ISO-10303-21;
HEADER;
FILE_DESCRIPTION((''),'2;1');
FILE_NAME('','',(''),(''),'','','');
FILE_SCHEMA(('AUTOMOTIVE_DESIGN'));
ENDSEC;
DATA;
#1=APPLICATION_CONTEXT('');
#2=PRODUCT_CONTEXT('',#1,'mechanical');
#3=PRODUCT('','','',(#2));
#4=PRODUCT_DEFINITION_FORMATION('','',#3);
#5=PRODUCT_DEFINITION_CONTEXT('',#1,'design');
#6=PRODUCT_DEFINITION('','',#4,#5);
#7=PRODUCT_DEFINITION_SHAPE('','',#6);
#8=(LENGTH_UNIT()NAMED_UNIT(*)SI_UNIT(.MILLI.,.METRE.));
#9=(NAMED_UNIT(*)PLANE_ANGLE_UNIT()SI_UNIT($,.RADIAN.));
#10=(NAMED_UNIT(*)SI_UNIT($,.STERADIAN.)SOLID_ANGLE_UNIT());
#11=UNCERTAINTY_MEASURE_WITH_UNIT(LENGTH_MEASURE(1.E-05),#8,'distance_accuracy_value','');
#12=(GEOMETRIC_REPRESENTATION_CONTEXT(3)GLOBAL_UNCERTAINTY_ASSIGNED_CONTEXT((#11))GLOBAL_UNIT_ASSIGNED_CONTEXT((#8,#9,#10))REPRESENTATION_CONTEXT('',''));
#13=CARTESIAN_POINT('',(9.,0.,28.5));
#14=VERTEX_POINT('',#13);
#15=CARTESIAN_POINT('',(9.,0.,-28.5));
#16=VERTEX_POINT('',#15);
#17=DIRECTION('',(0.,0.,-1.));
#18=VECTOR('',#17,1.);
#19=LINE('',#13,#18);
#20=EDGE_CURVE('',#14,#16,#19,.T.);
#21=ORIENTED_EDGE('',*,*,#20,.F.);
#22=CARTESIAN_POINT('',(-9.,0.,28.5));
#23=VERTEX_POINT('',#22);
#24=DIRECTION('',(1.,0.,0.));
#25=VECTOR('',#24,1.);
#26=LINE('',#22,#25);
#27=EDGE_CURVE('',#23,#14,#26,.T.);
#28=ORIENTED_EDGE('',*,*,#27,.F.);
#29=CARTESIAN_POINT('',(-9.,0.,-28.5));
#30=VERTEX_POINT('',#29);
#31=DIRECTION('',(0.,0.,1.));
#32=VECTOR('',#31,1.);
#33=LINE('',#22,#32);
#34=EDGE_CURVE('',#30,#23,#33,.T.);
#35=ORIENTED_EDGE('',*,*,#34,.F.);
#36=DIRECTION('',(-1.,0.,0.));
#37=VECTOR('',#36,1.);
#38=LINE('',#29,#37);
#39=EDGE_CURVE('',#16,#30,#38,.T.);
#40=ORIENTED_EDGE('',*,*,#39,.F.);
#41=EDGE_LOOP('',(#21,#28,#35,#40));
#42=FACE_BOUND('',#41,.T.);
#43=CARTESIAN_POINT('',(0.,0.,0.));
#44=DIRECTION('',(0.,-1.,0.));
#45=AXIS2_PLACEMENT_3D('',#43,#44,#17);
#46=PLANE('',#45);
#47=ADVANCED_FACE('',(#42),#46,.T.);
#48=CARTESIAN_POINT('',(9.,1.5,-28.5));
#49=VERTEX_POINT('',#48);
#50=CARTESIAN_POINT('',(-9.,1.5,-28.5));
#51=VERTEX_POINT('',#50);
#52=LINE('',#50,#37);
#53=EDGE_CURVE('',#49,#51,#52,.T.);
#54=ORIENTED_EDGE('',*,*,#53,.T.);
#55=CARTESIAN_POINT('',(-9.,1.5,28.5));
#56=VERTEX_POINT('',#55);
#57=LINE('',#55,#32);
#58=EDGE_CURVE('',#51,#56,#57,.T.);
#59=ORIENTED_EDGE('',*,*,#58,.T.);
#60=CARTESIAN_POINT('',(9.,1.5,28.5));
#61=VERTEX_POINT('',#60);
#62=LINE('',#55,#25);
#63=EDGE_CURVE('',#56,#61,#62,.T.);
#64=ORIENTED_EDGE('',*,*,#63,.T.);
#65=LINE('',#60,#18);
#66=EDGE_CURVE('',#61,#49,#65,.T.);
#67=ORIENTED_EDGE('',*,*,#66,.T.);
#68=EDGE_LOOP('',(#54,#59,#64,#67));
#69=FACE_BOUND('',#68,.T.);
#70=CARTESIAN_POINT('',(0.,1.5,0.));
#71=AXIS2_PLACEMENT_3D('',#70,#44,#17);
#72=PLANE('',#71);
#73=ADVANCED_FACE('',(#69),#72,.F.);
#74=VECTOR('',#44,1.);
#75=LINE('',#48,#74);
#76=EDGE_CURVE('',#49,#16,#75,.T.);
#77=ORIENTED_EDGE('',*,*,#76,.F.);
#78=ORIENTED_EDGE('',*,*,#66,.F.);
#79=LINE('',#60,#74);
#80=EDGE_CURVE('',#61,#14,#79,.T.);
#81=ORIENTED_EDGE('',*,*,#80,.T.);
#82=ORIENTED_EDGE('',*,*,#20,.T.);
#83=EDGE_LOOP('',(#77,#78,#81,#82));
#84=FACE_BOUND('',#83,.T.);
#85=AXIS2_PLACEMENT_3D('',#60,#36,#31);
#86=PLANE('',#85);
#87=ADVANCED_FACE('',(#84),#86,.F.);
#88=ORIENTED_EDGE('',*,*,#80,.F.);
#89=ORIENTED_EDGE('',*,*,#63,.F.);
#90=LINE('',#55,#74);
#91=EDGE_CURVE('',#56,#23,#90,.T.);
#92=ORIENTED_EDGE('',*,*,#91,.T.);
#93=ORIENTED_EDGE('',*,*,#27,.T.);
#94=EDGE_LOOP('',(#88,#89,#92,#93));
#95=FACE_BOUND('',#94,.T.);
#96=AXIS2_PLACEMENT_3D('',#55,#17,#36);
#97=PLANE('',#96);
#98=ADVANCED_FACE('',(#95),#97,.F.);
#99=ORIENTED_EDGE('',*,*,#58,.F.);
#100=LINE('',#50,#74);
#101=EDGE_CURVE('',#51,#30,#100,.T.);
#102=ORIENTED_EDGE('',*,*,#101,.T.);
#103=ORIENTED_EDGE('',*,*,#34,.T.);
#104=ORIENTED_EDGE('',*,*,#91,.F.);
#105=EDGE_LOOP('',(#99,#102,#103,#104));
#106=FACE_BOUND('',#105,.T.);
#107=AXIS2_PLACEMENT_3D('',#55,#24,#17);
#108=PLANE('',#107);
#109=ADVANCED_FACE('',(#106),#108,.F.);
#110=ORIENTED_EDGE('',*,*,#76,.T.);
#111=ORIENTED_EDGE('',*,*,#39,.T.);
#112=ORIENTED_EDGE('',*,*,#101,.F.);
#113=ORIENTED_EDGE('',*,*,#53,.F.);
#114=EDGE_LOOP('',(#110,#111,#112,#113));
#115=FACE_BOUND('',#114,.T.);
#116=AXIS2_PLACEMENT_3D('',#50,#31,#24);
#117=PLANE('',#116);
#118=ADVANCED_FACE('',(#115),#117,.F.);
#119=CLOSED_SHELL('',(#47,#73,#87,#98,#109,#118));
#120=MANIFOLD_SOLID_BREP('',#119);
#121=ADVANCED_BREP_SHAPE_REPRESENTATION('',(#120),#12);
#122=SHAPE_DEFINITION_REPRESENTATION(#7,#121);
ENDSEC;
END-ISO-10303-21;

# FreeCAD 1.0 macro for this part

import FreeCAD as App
import Part
import Sketcher

doc = App.newDocument("Part")
body = doc.addObject("PartDesign::Body", "Body")

sketch1 = body.newObject("Sketcher::SketchObject", "Sketch")
sketch1.AttachmentSupport = (doc.getObject("XZ_Plane"), [""])
sketch1.MapMode = "FlatFace"
sketch1.addGeometry(Part.LineSegment(App.Vector(-9, -28, 0), App.Vector(-9, 28, 0)), False)
sketch1.addGeometry(Part.LineSegment(App.Vector(-9, 28, 0), App.Vector(9, 28, 0)), False)
sketch1.addGeometry(Part.LineSegment(App.Vector(9, 28, 0), App.Vector(9, -28, 0)), False)
sketch1.addGeometry(Part.LineSegment(App.Vector(9, -28, 0), App.Vector(-9, -28, 0)), False)
sketch1.addConstraint(Sketcher.Constraint("Coincident", 0, 2, 1, 1))
sketch1.addConstraint(Sketcher.Constraint("Coincident", 1, 2, 2, 1))
sketch1.addConstraint(Sketcher.Constraint("Coincident", 2, 2, 3, 1))
sketch1.addConstraint(Sketcher.Constraint("Coincident", 3, 2, 0, 1))
sketch1.addConstraint(Sketcher.Constraint("Vertical", 0))
sketch1.addConstraint(Sketcher.Constraint("Horizontal", 1))
sketch1.addConstraint(Sketcher.Constraint("Vertical", 2))
sketch1.addConstraint(Sketcher.Constraint("Horizontal", 3))
sketch1.addConstraint(Sketcher.Constraint("Symmetric", 0, 2, 2, 2, -1, 1))
sketch1.addConstraint(Sketcher.Constraint("DistanceX", 1, 1, 1, 2, 18.0))
sketch1.addConstraint(Sketcher.Constraint("DistanceY", 0, 1, 0, 2, 57.0))
pad1 = body.newObject("PartDesign::Pad", "Pad")
pad1.Profile = sketch1
pad1.Length = 1.5
pad1.Reversed = True

doc.recompute()
